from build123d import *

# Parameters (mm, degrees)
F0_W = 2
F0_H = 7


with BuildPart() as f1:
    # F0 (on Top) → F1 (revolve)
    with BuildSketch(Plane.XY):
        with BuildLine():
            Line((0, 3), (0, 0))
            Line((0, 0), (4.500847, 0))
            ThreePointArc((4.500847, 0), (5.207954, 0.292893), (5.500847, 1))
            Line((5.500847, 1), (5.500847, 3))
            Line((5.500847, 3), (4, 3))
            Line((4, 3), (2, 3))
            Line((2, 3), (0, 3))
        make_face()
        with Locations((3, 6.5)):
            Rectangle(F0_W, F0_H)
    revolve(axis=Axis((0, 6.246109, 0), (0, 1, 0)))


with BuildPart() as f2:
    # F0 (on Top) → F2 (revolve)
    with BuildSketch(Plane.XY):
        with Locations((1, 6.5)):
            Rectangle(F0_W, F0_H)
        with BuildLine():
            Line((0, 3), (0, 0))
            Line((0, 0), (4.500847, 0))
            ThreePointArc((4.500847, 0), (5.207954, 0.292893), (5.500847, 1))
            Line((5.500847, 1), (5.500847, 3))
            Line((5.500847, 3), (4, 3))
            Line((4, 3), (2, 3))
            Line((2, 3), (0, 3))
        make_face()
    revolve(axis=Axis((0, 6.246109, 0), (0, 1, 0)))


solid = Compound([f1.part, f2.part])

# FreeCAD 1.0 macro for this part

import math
import FreeCAD as App
import Part
import Sketcher

doc = App.newDocument("Part")
params = doc.addObject("Spreadsheet::Sheet", "Params")
for row, (alias, value) in enumerate([
    ("sketch1_radius", "0.999999 mm"),
    ("sketch1_width", "2 mm"),
    ("sketch1_height", "7 mm"),
    ("revolution_angle", "360 deg"),
    ("sketch2_radius", "0.999999 mm"),
    ("sketch2_width", "2 mm"),
    ("sketch2_height", "10 mm"),
    ("revolution2_angle", "360 deg"),
], start=1):
    params.set(f"A{row}", alias)
    params.set(f"B{row}", "=" + value)
    params.setAlias(f"B{row}", alias)

body = doc.addObject("PartDesign::Body", "Body")

# Sketch on XY plane
sketch1 = body.newObject("Sketcher::SketchObject", "Sketch")
sketch1.AttachmentSupport = (doc.getObject("XY_Plane"), [""])
sketch1.MapMode = "FlatFace"
sketch1.addGeometry(Part.LineSegment(App.Vector(0, 3, 0), App.Vector(0, 0, 0)), False)
sketch1.addGeometry(Part.LineSegment(App.Vector(0, 0, 0), App.Vector(4.500847, 0, 0)), False)
sketch1.addGeometry(Part.ArcOfCircle(Part.Circle(App.Vector(4.500848, 0.999999, 0), App.Vector(0, 0, 1), 0.999999), math.radians(-90.000043), math.radians(0.000043)), False)
sketch1.addGeometry(Part.LineSegment(App.Vector(5.500847, 1, 0), App.Vector(5.500847, 3, 0)), False)
sketch1.addGeometry(Part.LineSegment(App.Vector(5.500847, 3, 0), App.Vector(4, 3, 0)), False)
sketch1.addGeometry(Part.LineSegment(App.Vector(4, 3, 0), App.Vector(4, 10, 0)), False)
sketch1.addGeometry(Part.LineSegment(App.Vector(4, 10, 0), App.Vector(2, 10, 0)), False)
sketch1.addGeometry(Part.LineSegment(App.Vector(2, 10, 0), App.Vector(2, 3, 0)), False)
sketch1.addGeometry(Part.LineSegment(App.Vector(2, 3, 0), App.Vector(0, 3, 0)), False)
sketch1.addConstraint(Sketcher.Constraint("Coincident", 0, 2, 1, 1))
sketch1.addConstraint(Sketcher.Constraint("Tangent", 1, 2, 2, 1))
sketch1.addConstraint(Sketcher.Constraint("Tangent", 2, 2, 3, 1))
sketch1.addConstraint(Sketcher.Constraint("Coincident", 3, 2, 4, 1))
sketch1.addConstraint(Sketcher.Constraint("Coincident", 4, 2, 5, 1))
sketch1.addConstraint(Sketcher.Constraint("Coincident", 5, 2, 6, 1))
sketch1.addConstraint(Sketcher.Constraint("Coincident", 6, 2, 7, 1))
sketch1.addConstraint(Sketcher.Constraint("Coincident", 7, 2, 8, 1))
sketch1.addConstraint(Sketcher.Constraint("Coincident", 8, 2, 0, 1))
sketch1.addConstraint(Sketcher.Constraint("Vertical", 0))
sketch1.addConstraint(Sketcher.Constraint("Horizontal", 1))
sketch1.addConstraint(Sketcher.Constraint("Vertical", 3))
sketch1.addConstraint(Sketcher.Constraint("Horizontal", 4))
sketch1.addConstraint(Sketcher.Constraint("Vertical", 5))
sketch1.addConstraint(Sketcher.Constraint("Horizontal", 6))
sketch1.addConstraint(Sketcher.Constraint("Vertical", 7))
sketch1.addConstraint(Sketcher.Constraint("Horizontal", 8))
sketch1.addConstraint(Sketcher.Constraint("Coincident", 0, 2, -1, 1))
sketch1.addConstraint(Sketcher.Constraint("Horizontal", 4, 2, 7, 2))
sketch1.addConstraint(Sketcher.Constraint("Equal", 6, 8))
sketch1.addConstraint(Sketcher.Constraint("Equal", 8, 3))
sketch1.addConstraint(Sketcher.Constraint("Radius", 2, 0.999999))
sketch1.addConstraint(Sketcher.Constraint("DistanceX", 6, 2, 6, 1, 2.0))
sketch1.addConstraint(Sketcher.Constraint("DistanceY", 5, 1, 5, 2, 7.0))
sketch1.addConstraint(Sketcher.Constraint("DistanceX", 1, 1, 1, 2, 4.500847))
sketch1.setExpression("Constraints[21]", "Params.sketch1_radius")
sketch1.setExpression("Constraints[22]", "Params.sketch1_width")
sketch1.setExpression("Constraints[23]", "Params.sketch1_height")
revolution = body.newObject("PartDesign::Revolution", "Revolution")
revolution.Profile = sketch1
revolution.ReferenceAxis = (sketch1, ["V_Axis"])
revolution.setExpression("Angle", "Params.revolution_angle")
body2 = doc.addObject("PartDesign::Body", "Body001")

# Sketch on XY plane
sketch2 = body2.newObject("Sketcher::SketchObject", "Sketch001")
sketch2.AttachmentSupport = (doc.getObject("XY_Plane001"), [""])
sketch2.MapMode = "FlatFace"
sketch2.addGeometry(Part.LineSegment(App.Vector(0, 10, 0), App.Vector(0, 0, 0)), False)
sketch2.addGeometry(Part.LineSegment(App.Vector(0, 0, 0), App.Vector(4.500847, 0, 0)), False)
sketch2.addGeometry(Part.ArcOfCircle(Part.Circle(App.Vector(4.500848, 0.999999, 0), App.Vector(0, 0, 1), 0.999999), math.radians(-90.000043), math.radians(0.000043)), False)
sketch2.addGeometry(Part.LineSegment(App.Vector(5.500847, 1, 0), App.Vector(5.500847, 3, 0)), False)
sketch2.addGeometry(Part.LineSegment(App.Vector(5.500847, 3, 0), App.Vector(2, 3, 0)), False)
sketch2.addGeometry(Part.LineSegment(App.Vector(2, 3, 0), App.Vector(2, 10, 0)), False)
sketch2.addGeometry(Part.LineSegment(App.Vector(2, 10, 0), App.Vector(0, 10, 0)), False)
sketch2.addConstraint(Sketcher.Constraint("Coincident", 0, 2, 1, 1))
sketch2.addConstraint(Sketcher.Constraint("Tangent", 1, 2, 2, 1))
sketch2.addConstraint(Sketcher.Constraint("Tangent", 2, 2, 3, 1))
sketch2.addConstraint(Sketcher.Constraint("Coincident", 3, 2, 4, 1))
sketch2.addConstraint(Sketcher.Constraint("Coincident", 4, 2, 5, 1))
sketch2.addConstraint(Sketcher.Constraint("Coincident", 5, 2, 6, 1))
sketch2.addConstraint(Sketcher.Constraint("Coincident", 6, 2, 0, 1))
sketch2.addConstraint(Sketcher.Constraint("Vertical", 0))
sketch2.addConstraint(Sketcher.Constraint("Horizontal", 1))
sketch2.addConstraint(Sketcher.Constraint("Vertical", 3))
sketch2.addConstraint(Sketcher.Constraint("Horizontal", 4))
sketch2.addConstraint(Sketcher.Constraint("Vertical", 5))
sketch2.addConstraint(Sketcher.Constraint("Horizontal", 6))
sketch2.addConstraint(Sketcher.Constraint("Coincident", 0, 2, -1, 1))
sketch2.addConstraint(Sketcher.Constraint("Equal", 6, 3))
sketch2.addConstraint(Sketcher.Constraint("Radius", 2, 0.999999))
sketch2.addConstraint(Sketcher.Constraint("DistanceX", 6, 2, 6, 1, 2.0))
sketch2.addConstraint(Sketcher.Constraint("DistanceY", 0, 2, 0, 1, 10.0))
sketch2.addConstraint(Sketcher.Constraint("DistanceX", 1, 1, 1, 2, 4.500847))
sketch2.setExpression("Constraints[15]", "Params.sketch2_radius")
sketch2.setExpression("Constraints[16]", "Params.sketch2_width")
sketch2.setExpression("Constraints[17]", "Params.sketch2_height")
revolution2 = body2.newObject("PartDesign::Revolution", "Revolution001")
revolution2.Profile = sketch2
revolution2.ReferenceAxis = (sketch2, ["V_Axis"])
revolution2.setExpression("Angle", "Params.revolution2_angle")

doc.recompute()
